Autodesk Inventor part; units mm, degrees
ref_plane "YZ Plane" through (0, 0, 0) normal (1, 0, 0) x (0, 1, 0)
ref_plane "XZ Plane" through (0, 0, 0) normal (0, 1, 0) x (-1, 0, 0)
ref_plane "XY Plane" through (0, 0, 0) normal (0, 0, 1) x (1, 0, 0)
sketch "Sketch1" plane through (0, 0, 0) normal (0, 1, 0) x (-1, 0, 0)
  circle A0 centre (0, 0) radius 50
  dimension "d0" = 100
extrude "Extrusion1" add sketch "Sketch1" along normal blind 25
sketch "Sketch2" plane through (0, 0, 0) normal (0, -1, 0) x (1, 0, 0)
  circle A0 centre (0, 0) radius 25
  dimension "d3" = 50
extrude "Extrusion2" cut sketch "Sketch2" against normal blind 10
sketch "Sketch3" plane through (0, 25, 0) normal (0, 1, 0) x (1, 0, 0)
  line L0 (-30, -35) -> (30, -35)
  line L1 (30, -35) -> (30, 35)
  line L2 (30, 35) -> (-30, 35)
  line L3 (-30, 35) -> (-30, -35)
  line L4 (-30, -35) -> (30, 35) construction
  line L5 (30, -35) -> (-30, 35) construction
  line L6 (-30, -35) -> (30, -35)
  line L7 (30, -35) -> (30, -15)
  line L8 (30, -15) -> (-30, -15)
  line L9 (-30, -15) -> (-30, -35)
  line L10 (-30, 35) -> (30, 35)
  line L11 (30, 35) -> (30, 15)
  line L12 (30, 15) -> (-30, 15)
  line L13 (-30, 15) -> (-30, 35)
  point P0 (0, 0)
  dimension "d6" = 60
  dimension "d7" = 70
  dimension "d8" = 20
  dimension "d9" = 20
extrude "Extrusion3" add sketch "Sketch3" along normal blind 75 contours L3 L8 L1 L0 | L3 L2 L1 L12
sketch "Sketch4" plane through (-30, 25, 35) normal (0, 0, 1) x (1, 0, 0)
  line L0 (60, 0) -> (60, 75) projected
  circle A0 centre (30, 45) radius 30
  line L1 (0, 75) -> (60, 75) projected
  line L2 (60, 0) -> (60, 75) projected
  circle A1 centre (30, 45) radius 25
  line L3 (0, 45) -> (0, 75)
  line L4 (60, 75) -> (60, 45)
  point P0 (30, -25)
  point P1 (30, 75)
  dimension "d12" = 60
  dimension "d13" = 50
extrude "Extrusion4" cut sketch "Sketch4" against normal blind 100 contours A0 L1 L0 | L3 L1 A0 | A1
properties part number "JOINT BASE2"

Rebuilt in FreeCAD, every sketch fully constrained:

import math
import FreeCAD as App
import Part
import Sketcher


def add_polygon(sketch, points):
    """Adds a closed chain of lines whose ends are joined by coincident constraints."""
    first, n = sketch.GeometryCount, len(points)
    for a, b in zip(points, points[1:] + points[:1]):
        sketch.addGeometry(Part.LineSegment(App.Vector(*a, 0), App.Vector(*b, 0)), False)
    for i in range(n):
        sketch.addConstraint(Sketcher.Constraint("Coincident", first + i, 2, first + (i + 1) % n, 1))

doc = App.newDocument("Part")
body = doc.addObject("PartDesign::Body", "Body")

sketch1 = doc.addObject("Sketcher::SketchObject", "Sketch")
body.addObject(sketch1)
sketch1.AttachmentSupport = (doc.XZ_Plane, [""])
sketch1.MapMode = "FlatFace"
sketch1.addGeometry(Part.Circle(App.Vector(0, 0, 0), App.Vector(0, 0, 1), 50), False)
sketch1.addConstraint([
    Sketcher.Constraint("Coincident", 0, 3, -1, 1),
    Sketcher.Constraint("Diameter", 0, 100.0),
])
pad1 = doc.addObject("PartDesign::Pad", "Pad")
body.addObject(pad1)
pad1.Profile = sketch1
pad1.Length = 25
pad1.Reversed = True

sketch2 = doc.addObject("Sketcher::SketchObject", "Sketch001")
body.addObject(sketch2)
sketch2.AttachmentSupport = (doc.XZ_Plane, [""])
sketch2.MapMode = "FlatFace"
sketch2.addGeometry(Part.Circle(App.Vector(0, 0, 0), App.Vector(0, 0, 1), 25), False)
sketch2.addConstraint([
    Sketcher.Constraint("Coincident", 0, 3, -1, 1),
    Sketcher.Constraint("Diameter", 0, 50.0),
])
pocket1 = doc.addObject("PartDesign::Pocket", "Pocket")
body.addObject(pocket1)
pocket1.Profile = sketch2
pocket1.Length = 10

sketch3 = doc.addObject("Sketcher::SketchObject", "Sketch002")
body.addObject(sketch3)
sketch3.AttachmentSupport = (doc.XZ_Plane, [""])
sketch3.MapMode = "FlatFace"
sketch3.AttachmentOffset = App.Placement(App.Vector(0, 0, -25), App.Rotation())
add_polygon(sketch3, [(-30, 15), (-30, 35), (30, 35), (30, 15)])
add_polygon(sketch3, [(-30, -35), (-30, -15), (30, -15), (30, -35)])
sketch3.addConstraint([
    Sketcher.Constraint("Vertical", 0),
    Sketcher.Constraint("Horizontal", 1),
    Sketcher.Constraint("Vertical", 2),
    Sketcher.Constraint("Horizontal", 3),
    Sketcher.Constraint("Vertical", 4),
    Sketcher.Constraint("Horizontal", 5),
    Sketcher.Constraint("Vertical", 6),
    Sketcher.Constraint("Horizontal", 7),
    Sketcher.Constraint("Symmetric", 2, 2, 4, 2, -1, 1),
    Sketcher.Constraint("Symmetric", 0, 2, 6, 2, -1, 1),
    Sketcher.Constraint("Vertical", 3, 2, 4, 2),
    Sketcher.Constraint("DistanceX", 1, 1, 1, 2, 60.0),
    Sketcher.Constraint("DistanceY", 0, 1, 0, 2, 20.0),
    Sketcher.Constraint("DistanceY", 6, 2, 1, 2, 70.0),
])
pad2 = doc.addObject("PartDesign::Pad", "Pad001")
body.addObject(pad2)
pad2.Profile = sketch3
pad2.Length = 75
pad2.Reversed = True

sketch4 = doc.addObject("Sketcher::SketchObject", "Sketch003")
body.addObject(sketch4)
sketch4.AttachmentSupport = (doc.XY_Plane, [""])
sketch4.MapMode = "FlatFace"
sketch4.AttachmentOffset = App.Placement(App.Vector(0, 0, 35), App.Rotation())
sketch4.addGeometry([
    Part.ArcOfCircle(Part.Circle(App.Vector(0, 70, 0), App.Vector(0, 0, 1), 30), math.radians(0), math.radians(90)),
    Part.LineSegment(App.Vector(30, 70, 0), App.Vector(30, 100, 0)),
    Part.LineSegment(App.Vector(30, 100, 0), App.Vector(0, 100, 0)),
    Part.LineSegment(App.Vector(-30, 100, 0), App.Vector(-30, 70, 0)),
    Part.ArcOfCircle(Part.Circle(App.Vector(0, 70, 0), App.Vector(0, 0, 1), 30), math.radians(90), math.radians(180)),
    Part.LineSegment(App.Vector(0, 100, 0), App.Vector(-30, 100, 0)),
    Part.Circle(App.Vector(0, 70, 0), App.Vector(0, 0, 1), 25),
], False)
sketch4.addConstraint([
    Sketcher.Constraint("Tangent", 0, 1, 1, 1),
    Sketcher.Constraint("Coincident", 1, 2, 2, 1),
    Sketcher.Constraint("Tangent", 2, 2, 0, 2),
    Sketcher.Constraint("Tangent", 3, 2, 4, 2),
    Sketcher.Constraint("Tangent", 4, 1, 5, 1),
    Sketcher.Constraint("Coincident", 5, 2, 3, 1),
    Sketcher.Constraint("Vertical", 1),
    Sketcher.Constraint("Horizontal", 2),
    Sketcher.Constraint("Vertical", 3),
    Sketcher.Constraint("Horizontal", 5),
    Sketcher.Constraint("Coincident", 4, 3, 0, 3),
    Sketcher.Constraint("Coincident", 6, 3, 0, 3),
    Sketcher.Constraint("Equal", 0, 4),
    Sketcher.Constraint("PointOnObject", 0, 3, -2),
    Sketcher.Constraint("Diameter", 6, 50.0),
    Sketcher.Constraint("Radius", 0, 30.0),
    Sketcher.Constraint("DistanceY", -1, 1, 0, 3, 70.0),
])
pocket2 = doc.addObject("PartDesign::Pocket", "Pocket001")
body.addObject(pocket2)
pocket2.Profile = sketch4
pocket2.Length = 100

doc.recompute()
